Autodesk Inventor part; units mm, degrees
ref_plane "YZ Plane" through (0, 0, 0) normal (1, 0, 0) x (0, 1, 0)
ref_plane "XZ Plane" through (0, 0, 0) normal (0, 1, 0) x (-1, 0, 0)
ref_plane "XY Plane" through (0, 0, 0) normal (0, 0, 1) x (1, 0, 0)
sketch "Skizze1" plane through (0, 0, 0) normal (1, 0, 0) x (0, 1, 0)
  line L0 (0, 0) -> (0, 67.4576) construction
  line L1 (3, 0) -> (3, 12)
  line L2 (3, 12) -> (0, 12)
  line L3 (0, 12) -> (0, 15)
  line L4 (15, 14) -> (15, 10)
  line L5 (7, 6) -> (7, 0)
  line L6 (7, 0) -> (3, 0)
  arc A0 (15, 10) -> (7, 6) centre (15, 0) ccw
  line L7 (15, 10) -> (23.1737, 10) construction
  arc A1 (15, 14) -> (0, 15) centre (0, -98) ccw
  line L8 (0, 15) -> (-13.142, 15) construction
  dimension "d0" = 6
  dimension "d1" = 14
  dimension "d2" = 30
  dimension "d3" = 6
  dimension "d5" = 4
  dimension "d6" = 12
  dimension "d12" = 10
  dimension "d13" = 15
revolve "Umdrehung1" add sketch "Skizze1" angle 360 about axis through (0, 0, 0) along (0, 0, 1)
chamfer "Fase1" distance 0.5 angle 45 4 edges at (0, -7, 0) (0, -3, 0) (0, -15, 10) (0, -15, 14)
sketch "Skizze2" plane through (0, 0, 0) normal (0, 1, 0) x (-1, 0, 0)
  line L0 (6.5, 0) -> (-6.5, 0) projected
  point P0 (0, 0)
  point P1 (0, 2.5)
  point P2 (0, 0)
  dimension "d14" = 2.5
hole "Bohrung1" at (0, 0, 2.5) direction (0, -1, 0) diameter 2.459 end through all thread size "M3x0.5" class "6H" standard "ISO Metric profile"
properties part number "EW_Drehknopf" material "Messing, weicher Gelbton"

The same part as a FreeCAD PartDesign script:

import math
import FreeCAD as App
import Part
import Sketcher
from FreeCAD import Vector


def edges_at(feature, points):
    """Names of the edges that pass closest to the given points."""
    edges = feature.Shape.Edges
    near = lambda p: min(range(len(edges)), key=lambda i: edges[i].distToShape(Part.Vertex(*p))[0])
    return sorted({f"Edge{near(p) + 1}" for p in points})

doc = App.newDocument("Part")
params = doc.addObject("Spreadsheet::Sheet", "Params")
for row, (alias, value) in enumerate([
    ("sketch1_radius", "10 mm"),
    ("sketch1_width", "4 mm"),
    ("sketch1_height", "12 mm"),
    ("sketch1_height2", "6 mm"),
    ("revolution_angle", "360 deg"),
    ("chamfer_size", "0.5 mm"),
    ("hole_diameter", "2.459 mm"),
], start=1):
    params.set(f"A{row}", alias)
    params.set(f"B{row}", "=" + value)
    params.setAlias(f"B{row}", alias)

body = doc.addObject("PartDesign::Body", "Body")

sketch1 = doc.addObject("Sketcher::SketchObject", "Sketch")
body.addObject(sketch1)
sketch1.AttachmentSupport = (doc.YZ_Plane, [""])
sketch1.MapMode = "FlatFace"
sketch1.addGeometry([
    Part.LineSegment(Vector(3, 12, 0), Vector(3, 0, 0)),
    Part.LineSegment(Vector(3, 0, 0), Vector(7, 0, 0)),
    Part.LineSegment(Vector(7, 0, 0), Vector(7, 6, 0)),
    Part.ArcOfCircle(Part.Circle(Vector(15, 0, 0), Vector(0, 0, 1), 10), math.radians(90), math.radians(143)),
    Part.LineSegment(Vector(15, 10, 0), Vector(15, 14, 0)),
    Part.ArcOfCircle(Part.Circle(Vector(0, -98, 0), Vector(0, 0, 1), 113), math.radians(82.37), math.radians(90)),
    Part.LineSegment(Vector(0, 15, 0), Vector(0, 12, 0)),
    Part.LineSegment(Vector(0, 12, 0), Vector(3, 12, 0)),
], False)
sketch1.addConstraint([
    Sketcher.Constraint("Coincident", 0, 2, 1, 1),
    Sketcher.Constraint("Coincident", 1, 2, 2, 1),
    Sketcher.Constraint("Coincident", 2, 2, 3, 2),
    Sketcher.Constraint("Coincident", 3, 1, 4, 1),
    Sketcher.Constraint("Coincident", 4, 2, 5, 1),
    Sketcher.Constraint("Coincident", 5, 2, 6, 1),
    Sketcher.Constraint("Coincident", 6, 2, 7, 1),
    Sketcher.Constraint("Coincident", 7, 2, 0, 1),
    Sketcher.Constraint("Vertical", 0),
    Sketcher.Constraint("Horizontal", 1),
    Sketcher.Constraint("Vertical", 2),
    Sketcher.Constraint("Vertical", 4),
    Sketcher.Constraint("Vertical", 6),
    Sketcher.Constraint("Horizontal", 7),
    Sketcher.Constraint("PointOnObject", 3, 3, -1),
    Sketcher.Constraint("PointOnObject", 5, 3, -2),
    Sketcher.Constraint("PointOnObject", 0, 2, -1),
    Sketcher.Constraint("PointOnObject", 5, 2, -2),
    Sketcher.Constraint("Equal", 1, 4),
    Sketcher.Constraint("Equal", 7, 6),
    Sketcher.Constraint("Radius", 3, 10.0),
    Sketcher.Constraint("DistanceX", 1, 1, 1, 2, 4.0),
    Sketcher.Constraint("DistanceY", 0, 2, 0, 1, 12.0),
    Sketcher.Constraint("DistanceY", 2, 1, 2, 2, 6.0),
    Sketcher.Constraint("DistanceX", -1, 1, 3, 3, 15.0),
    Sketcher.Constraint("DistanceX", -1, 1, 3, 1, 15.0),
])
sketch1.setExpression("Constraints[20]", "Params.sketch1_radius")
sketch1.setExpression("Constraints[21]", "Params.sketch1_width")
sketch1.setExpression("Constraints[22]", "Params.sketch1_height")
sketch1.setExpression("Constraints[23]", "Params.sketch1_height2")
revolution = doc.addObject("PartDesign::Revolution", "Revolution")
body.addObject(revolution)
revolution.Profile = sketch1
revolution.ReferenceAxis = (sketch1, ["V_Axis"])
revolution.setExpression("Angle", "Params.revolution_angle")
doc.recompute()

chamfer = doc.addObject("PartDesign::Chamfer", "Chamfer")
body.addObject(chamfer)
chamfer.Base = (revolution, edges_at(revolution, [
    (0, -7, 0),
    (0, -3, 0),
    (0, -15, 10),
    (0, -15, 14),
]))
chamfer.setExpression("Size", "Params.chamfer_size")

sketch2 = doc.addObject("Sketcher::SketchObject", "Sketch001")
body.addObject(sketch2)
sketch2.AttachmentSupport = (doc.XZ_Plane, [""])
sketch2.MapMode = "FlatFace"
sketch2.addGeometry(Part.Circle(Vector(0, 2.5, 0), Vector(0, 0, 1), 1.2), False)
sketch2.addConstraint([
    Sketcher.Constraint("PointOnObject", 0, 3, -2),
    Sketcher.Constraint("Diameter", 0, 2.459),
    Sketcher.Constraint("DistanceY", -1, 1, 0, 3, 2.5),
])
doc.recompute()
hole = doc.addObject("PartDesign::Hole", "Hole")
body.addObject(hole)
hole.Profile = sketch2
hole.ThreadType = "None"
hole.setExpression("Diameter", "Params.hole_diameter")
hole.DepthType = "ThroughAll"
hole.Reversed = True

doc.recompute()
